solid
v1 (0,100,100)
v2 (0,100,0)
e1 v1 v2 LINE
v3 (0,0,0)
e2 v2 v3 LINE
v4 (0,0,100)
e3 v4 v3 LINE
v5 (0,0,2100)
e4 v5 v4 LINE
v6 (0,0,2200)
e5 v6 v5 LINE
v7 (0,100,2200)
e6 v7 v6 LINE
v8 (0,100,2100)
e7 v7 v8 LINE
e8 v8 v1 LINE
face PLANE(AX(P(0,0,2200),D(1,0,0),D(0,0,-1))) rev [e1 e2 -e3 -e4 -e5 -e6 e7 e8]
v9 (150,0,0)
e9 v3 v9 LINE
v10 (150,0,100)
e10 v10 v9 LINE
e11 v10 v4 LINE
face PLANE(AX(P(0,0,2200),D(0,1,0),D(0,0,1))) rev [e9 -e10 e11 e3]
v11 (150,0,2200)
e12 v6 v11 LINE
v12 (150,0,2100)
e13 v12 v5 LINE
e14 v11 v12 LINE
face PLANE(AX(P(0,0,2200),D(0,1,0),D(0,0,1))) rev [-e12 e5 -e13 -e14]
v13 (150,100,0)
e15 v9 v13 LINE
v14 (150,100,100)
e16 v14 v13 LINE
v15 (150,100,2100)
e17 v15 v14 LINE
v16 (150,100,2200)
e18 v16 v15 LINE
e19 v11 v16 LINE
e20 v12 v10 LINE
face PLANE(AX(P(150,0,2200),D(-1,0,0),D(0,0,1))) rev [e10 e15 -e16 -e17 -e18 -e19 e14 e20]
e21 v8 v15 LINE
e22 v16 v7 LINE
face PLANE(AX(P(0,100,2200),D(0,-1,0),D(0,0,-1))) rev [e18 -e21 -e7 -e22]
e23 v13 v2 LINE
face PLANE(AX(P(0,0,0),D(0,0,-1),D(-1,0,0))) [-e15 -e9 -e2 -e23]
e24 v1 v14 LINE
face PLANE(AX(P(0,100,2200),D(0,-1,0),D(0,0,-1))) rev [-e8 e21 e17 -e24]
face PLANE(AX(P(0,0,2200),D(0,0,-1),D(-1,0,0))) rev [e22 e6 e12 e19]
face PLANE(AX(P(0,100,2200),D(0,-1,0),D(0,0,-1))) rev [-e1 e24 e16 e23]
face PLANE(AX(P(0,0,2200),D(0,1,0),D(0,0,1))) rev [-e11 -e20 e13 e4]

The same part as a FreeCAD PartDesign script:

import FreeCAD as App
import Part
import Sketcher

V = App.Vector
Q = App.Units.Quantity


def add_polygon(sketch, points):
    """Adds a closed chain of lines whose ends are joined by coincident constraints."""
    first, n = sketch.GeometryCount, len(points)
    for a, b in zip(points, points[1:] + points[:1]):
        sketch.addGeometry(Part.LineSegment(App.Vector(*a, 0), App.Vector(*b, 0)), False)
    for i in range(n):
        sketch.addConstraint(Sketcher.Constraint("Coincident", first + i, 2, first + (i + 1) % n, 1))

doc = App.newDocument("Part")
params = doc.addObject("Spreadsheet::Sheet", "Params")
for row, (alias, value) in enumerate([
    ("sketch1_width", "150 mm"),
    ("sketch1_height", "100 mm"),
    ("pad1_length", "2200 mm"),
], start=1):
    params.set(f"A{row}", alias)
    params.set(f"B{row}", "=" + value)
    params.setAlias(f"B{row}", alias)

body = doc.addObject("PartDesign::Body", "Body")

# Sketch on XY plane
sketch1 = body.newObject("Sketcher::SketchObject", "Sketch")
sketch1.AttachmentSupport = (doc.getObject("XY_Plane"), [""])
sketch1.MapMode = "FlatFace"
add_polygon(sketch1, [(0, 100), (0, 0), (150, 0), (150, 100)])  # lines 0-3
sketch1.addConstraint([
    Sketcher.Constraint("Vertical", 0),
    Sketcher.Constraint("Horizontal", 1),
    Sketcher.Constraint("Vertical", 2),
    Sketcher.Constraint("Horizontal", 3),
    Sketcher.Constraint("Coincident", 0, 2, -1, 1),
    Sketcher.Constraint("DistanceX", 1, 1, 1, 2, Q("150 mm")),
    Sketcher.Constraint("DistanceY", 0, 2, 0, 1, Q("100 mm")),
])
sketch1.setExpression("Constraints[9]", "Params.sketch1_width")
sketch1.setExpression("Constraints[10]", "Params.sketch1_height")
pad1 = body.newObject("PartDesign::Pad", "Pad")
pad1.Profile = sketch1
pad1.setExpression("Length", "Params.pad1_length")

doc.recompute()
